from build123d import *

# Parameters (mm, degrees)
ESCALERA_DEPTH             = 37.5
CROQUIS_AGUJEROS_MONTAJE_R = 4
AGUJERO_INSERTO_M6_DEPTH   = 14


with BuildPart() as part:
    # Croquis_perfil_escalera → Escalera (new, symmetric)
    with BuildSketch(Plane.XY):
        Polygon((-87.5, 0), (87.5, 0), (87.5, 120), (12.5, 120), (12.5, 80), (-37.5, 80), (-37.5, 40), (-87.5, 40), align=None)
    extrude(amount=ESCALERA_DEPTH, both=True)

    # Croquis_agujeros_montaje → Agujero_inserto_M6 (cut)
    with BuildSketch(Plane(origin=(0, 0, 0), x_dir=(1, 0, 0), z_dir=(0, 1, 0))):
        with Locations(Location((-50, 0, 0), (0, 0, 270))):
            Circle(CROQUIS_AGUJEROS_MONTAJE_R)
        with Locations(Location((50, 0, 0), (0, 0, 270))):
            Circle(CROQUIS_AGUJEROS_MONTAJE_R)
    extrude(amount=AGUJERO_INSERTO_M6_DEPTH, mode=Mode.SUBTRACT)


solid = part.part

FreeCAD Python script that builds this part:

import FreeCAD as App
import Part
import Sketcher
from FreeCAD import Vector
Q = App.Units.Quantity

doc = App.newDocument("Part")
body = doc.addObject("PartDesign::Body", "Body")

# Sketch on XY plane
sketch1 = body.newObject("Sketcher::SketchObject", "Sketch")
sketch1.AttachmentSupport = (doc.getObject("XY_Plane"), [""])
sketch1.MapMode = "FlatFace"
sketch1.addGeometry(Part.LineSegment(Vector(-87.5, 0, 0), Vector(87.5, 0, 0)), False)
sketch1.addGeometry(Part.LineSegment(Vector(87.5, 0, 0), Vector(87.5, 120, 0)), False)
sketch1.addGeometry(Part.LineSegment(Vector(87.5, 120, 0), Vector(12.5, 120, 0)), False)
sketch1.addGeometry(Part.LineSegment(Vector(12.5, 120, 0), Vector(12.5, 80, 0)), False)
sketch1.addGeometry(Part.LineSegment(Vector(12.5, 80, 0), Vector(-37.5, 80, 0)), False)
sketch1.addGeometry(Part.LineSegment(Vector(-37.5, 80, 0), Vector(-37.5, 40, 0)), False)
sketch1.addGeometry(Part.LineSegment(Vector(-37.5, 40, 0), Vector(-87.5, 40, 0)), False)
sketch1.addGeometry(Part.LineSegment(Vector(-87.5, 40, 0), Vector(-87.5, 0, 0)), False)
sketch1.addConstraint(Sketcher.Constraint("Coincident", 0, 2, 1, 1))
sketch1.addConstraint(Sketcher.Constraint("Coincident", 1, 2, 2, 1))
sketch1.addConstraint(Sketcher.Constraint("Coincident", 2, 2, 3, 1))
sketch1.addConstraint(Sketcher.Constraint("Coincident", 3, 2, 4, 1))
sketch1.addConstraint(Sketcher.Constraint("Coincident", 4, 2, 5, 1))
sketch1.addConstraint(Sketcher.Constraint("Coincident", 5, 2, 6, 1))
sketch1.addConstraint(Sketcher.Constraint("Coincident", 6, 2, 7, 1))
sketch1.addConstraint(Sketcher.Constraint("Coincident", 7, 2, 0, 1))
sketch1.addConstraint(Sketcher.Constraint("Horizontal", 0))
sketch1.addConstraint(Sketcher.Constraint("Vertical", 1))
sketch1.addConstraint(Sketcher.Constraint("Horizontal", 2))
sketch1.addConstraint(Sketcher.Constraint("Vertical", 3))
sketch1.addConstraint(Sketcher.Constraint("Horizontal", 4))
sketch1.addConstraint(Sketcher.Constraint("Vertical", 5))
sketch1.addConstraint(Sketcher.Constraint("Horizontal", 6))
sketch1.addConstraint(Sketcher.Constraint("Vertical", 7))
sketch1.addConstraint(Sketcher.Constraint("Symmetric", 0, 2, 7, 2, -1, 1))
sketch1.addConstraint(Sketcher.Constraint("Equal", 4, 6))
sketch1.addConstraint(Sketcher.Constraint("Equal", 3, 5))
sketch1.addConstraint(Sketcher.Constraint("Equal", 5, 7))
sketch1.addConstraint(Sketcher.Constraint("DistanceX", 0, 1, 0, 2, Q("175 mm")))
sketch1.addConstraint(Sketcher.Constraint("DistanceX", 2, 2, 2, 1, Q("75 mm")))
sketch1.addConstraint(Sketcher.Constraint("DistanceY", 1, 1, 1, 2, Q("120 mm")))
pad1 = body.newObject("PartDesign::Pad", "Pad")
pad1.Profile = sketch1
pad1.Length = 75
pad1.Midplane = True

# Sketch on XZ plane
sketch2 = body.newObject("Sketcher::SketchObject", "Sketch001")
sketch2.AttachmentSupport = (doc.getObject("XZ_Plane"), [""])
sketch2.MapMode = "FlatFace"
sketch2.addGeometry(Part.Circle(Vector(-50, 0, 0), Vector(0, 0, 1), 4), False)
sketch2.addGeometry(Part.Circle(Vector(50, 0, 0), Vector(0, 0, 1), 4), False)
sketch2.addConstraint(Sketcher.Constraint("Equal", 0, 1))
sketch2.addConstraint(Sketcher.Constraint("Symmetric", 0, 3, 1, 3, -1, 1))
sketch2.addConstraint(Sketcher.Constraint("PointOnObject", 0, 3, -1))
sketch2.addConstraint(Sketcher.Constraint("Diameter", 0, Q("8 mm")))
sketch2.addConstraint(Sketcher.Constraint("DistanceX", 0, 3, -1, 1, Q("50 mm")))
pocket1 = body.newObject("PartDesign::Pocket", "Pocket")
pocket1.Profile = sketch2
pocket1.Length = 14

doc.recompute()
